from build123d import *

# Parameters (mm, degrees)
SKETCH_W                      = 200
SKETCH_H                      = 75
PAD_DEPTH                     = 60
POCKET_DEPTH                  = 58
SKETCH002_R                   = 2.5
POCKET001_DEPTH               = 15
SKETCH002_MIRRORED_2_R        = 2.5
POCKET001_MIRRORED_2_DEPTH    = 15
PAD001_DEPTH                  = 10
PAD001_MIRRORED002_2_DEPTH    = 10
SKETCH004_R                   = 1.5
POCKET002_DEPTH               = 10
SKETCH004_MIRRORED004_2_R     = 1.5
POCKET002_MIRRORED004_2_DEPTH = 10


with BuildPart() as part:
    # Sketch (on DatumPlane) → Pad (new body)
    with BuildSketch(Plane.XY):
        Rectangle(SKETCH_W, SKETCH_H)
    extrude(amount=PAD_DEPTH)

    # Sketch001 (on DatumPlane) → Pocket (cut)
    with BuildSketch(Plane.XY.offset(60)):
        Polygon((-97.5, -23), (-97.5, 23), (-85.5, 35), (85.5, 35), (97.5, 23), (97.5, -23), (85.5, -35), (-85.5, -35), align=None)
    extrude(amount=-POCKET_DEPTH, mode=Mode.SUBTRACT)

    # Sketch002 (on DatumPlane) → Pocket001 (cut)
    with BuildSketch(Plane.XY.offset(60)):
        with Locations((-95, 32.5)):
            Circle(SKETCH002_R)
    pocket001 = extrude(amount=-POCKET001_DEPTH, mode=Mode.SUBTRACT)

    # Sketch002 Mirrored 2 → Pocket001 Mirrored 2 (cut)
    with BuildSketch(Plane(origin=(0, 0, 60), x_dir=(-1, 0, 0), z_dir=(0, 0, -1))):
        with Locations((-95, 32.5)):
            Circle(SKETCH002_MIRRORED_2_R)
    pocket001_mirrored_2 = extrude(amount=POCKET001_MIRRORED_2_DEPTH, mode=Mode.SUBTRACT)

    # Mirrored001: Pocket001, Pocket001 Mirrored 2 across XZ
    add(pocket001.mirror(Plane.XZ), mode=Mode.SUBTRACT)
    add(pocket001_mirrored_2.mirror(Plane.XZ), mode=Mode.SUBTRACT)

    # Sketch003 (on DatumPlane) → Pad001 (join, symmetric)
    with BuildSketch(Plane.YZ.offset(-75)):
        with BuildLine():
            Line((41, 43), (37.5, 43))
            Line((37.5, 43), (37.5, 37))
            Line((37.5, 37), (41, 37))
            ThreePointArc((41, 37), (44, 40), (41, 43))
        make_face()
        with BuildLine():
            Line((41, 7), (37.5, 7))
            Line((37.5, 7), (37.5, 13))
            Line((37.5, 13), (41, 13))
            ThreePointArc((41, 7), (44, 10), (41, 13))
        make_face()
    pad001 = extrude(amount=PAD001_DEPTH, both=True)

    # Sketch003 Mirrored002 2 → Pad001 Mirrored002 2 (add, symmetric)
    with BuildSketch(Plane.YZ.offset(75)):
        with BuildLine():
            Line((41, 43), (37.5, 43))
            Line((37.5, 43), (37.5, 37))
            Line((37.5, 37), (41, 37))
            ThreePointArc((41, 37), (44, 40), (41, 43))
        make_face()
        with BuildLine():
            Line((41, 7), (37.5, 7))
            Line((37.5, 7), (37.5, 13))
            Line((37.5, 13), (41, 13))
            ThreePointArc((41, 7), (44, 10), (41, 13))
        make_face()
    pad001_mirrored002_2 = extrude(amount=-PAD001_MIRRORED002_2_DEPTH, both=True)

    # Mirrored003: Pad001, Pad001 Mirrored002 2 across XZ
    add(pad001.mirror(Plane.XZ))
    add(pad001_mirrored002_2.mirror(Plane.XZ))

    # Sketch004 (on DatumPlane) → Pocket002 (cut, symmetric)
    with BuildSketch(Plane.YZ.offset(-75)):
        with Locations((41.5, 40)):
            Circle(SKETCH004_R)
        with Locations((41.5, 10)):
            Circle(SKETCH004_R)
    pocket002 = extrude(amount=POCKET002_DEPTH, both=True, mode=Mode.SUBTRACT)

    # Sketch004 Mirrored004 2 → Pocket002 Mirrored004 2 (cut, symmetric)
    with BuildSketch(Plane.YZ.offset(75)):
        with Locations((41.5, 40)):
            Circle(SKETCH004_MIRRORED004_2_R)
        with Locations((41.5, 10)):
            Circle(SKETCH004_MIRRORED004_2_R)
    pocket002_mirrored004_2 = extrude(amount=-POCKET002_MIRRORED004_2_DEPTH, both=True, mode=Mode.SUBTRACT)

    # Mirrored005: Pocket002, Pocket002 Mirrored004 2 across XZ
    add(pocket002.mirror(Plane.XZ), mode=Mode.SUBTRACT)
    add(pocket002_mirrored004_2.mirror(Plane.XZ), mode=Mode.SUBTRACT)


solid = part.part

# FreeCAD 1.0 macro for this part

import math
import FreeCAD as App
import Part
import Sketcher

V = App.Vector

doc = App.newDocument("Part")
params = doc.addObject("Spreadsheet::Sheet", "Params")
for row, (alias, value) in enumerate([
    ("sketch1_width", "200 mm"),
    ("sketch1_height", "75 mm"),
    ("pad1_length", "60 mm"),
    ("sketch2_width", "171 mm"),
    ("sketch2_height", "46 mm"),
    ("pocket1_length", "58 mm"),
    ("sketch3_diameter", "5 mm"),
    ("pocket2_length", "15 mm"),
    ("sketch4_diameter", "5 mm"),
    ("pocket3_length", "15 mm"),
    ("sketch5_radius", "3 mm"),
    ("sketch5_width", "3.5 mm"),
    ("pad2_length", "20 mm"),
    ("sketch6_radius", "3 mm"),
    ("sketch6_width", "3.5 mm"),
    ("pad3_length", "20 mm"),
    ("sketch7_diameter", "3 mm"),
    ("pocket4_length", "20 mm"),
    ("sketch8_diameter", "3 mm"),
    ("pocket5_length", "20 mm"),
], start=1):
    params.set(f"A{row}", alias)
    params.set(f"B{row}", "=" + value)
    params.setAlias(f"B{row}", alias)

body = doc.addObject("PartDesign::Body", "Body")

# Sketch on XY plane
sketch1 = doc.addObject("Sketcher::SketchObject", "Sketch")
body.addObject(sketch1)
sketch1.AttachmentSupport = (doc.XY_Plane, [""])
sketch1.MapMode = "FlatFace"
sketch1.addGeometry([
    Part.LineSegment(V(-100, 38, 0), V(-100, -38, 0)),
    Part.LineSegment(V(-100, -38, 0), V(100, -38, 0)),
    Part.LineSegment(V(100, -38, 0), V(100, 38, 0)),
    Part.LineSegment(V(100, 38, 0), V(-100, 38, 0)),
], False)
sketch1.addConstraint([
    Sketcher.Constraint("Coincident", 0, 2, 1, 1),
    Sketcher.Constraint("Coincident", 1, 2, 2, 1),
    Sketcher.Constraint("Coincident", 2, 2, 3, 1),
    Sketcher.Constraint("Coincident", 3, 2, 0, 1),
    Sketcher.Constraint("Vertical", 0),
    Sketcher.Constraint("Horizontal", 1),
    Sketcher.Constraint("Vertical", 2),
    Sketcher.Constraint("Horizontal", 3),
    Sketcher.Constraint("Symmetric", 0, 2, 2, 2, -1, 1),
    Sketcher.Constraint("DistanceX", 1, 1, 1, 2, 200.0),
    Sketcher.Constraint("DistanceY", 0, 2, 0, 1, 75.0),
])
sketch1.setExpression("Constraints[9]", "Params.sketch1_width")
sketch1.setExpression("Constraints[10]", "Params.sketch1_height")
pad1 = doc.addObject("PartDesign::Pad", "Pad")
body.addObject(pad1)
pad1.Profile = sketch1
pad1.setExpression("Length", "Params.pad1_length")

# Sketch on XY plane
sketch2 = doc.addObject("Sketcher::SketchObject", "Sketch001")
body.addObject(sketch2)
sketch2.AttachmentSupport = (doc.XY_Plane, [""])
sketch2.MapMode = "FlatFace"
sketch2.AttachmentOffset = App.Placement(V(0, 0, 60), App.Rotation())
sketch2.addGeometry([
    Part.LineSegment(V(-98, 23, 0), V(-98, -23, 0)),  # 0
    Part.LineSegment(V(-98, -23, 0), V(-86, -35, 0)),  # 1
    Part.LineSegment(V(-86, -35, 0), V(86, -35, 0)),  # 2
    Part.LineSegment(V(86, -35, 0), V(98, -23, 0)),  # 3
    Part.LineSegment(V(98, -23, 0), V(98, 23, 0)),  # 4
    Part.LineSegment(V(98, 23, 0), V(86, 35, 0)),  # 5
    Part.LineSegment(V(86, 35, 0), V(-86, 35, 0)),  # 6
    Part.LineSegment(V(-86, 35, 0), V(-98, 23, 0)),  # 7
], False)
sketch2.addConstraint([
    Sketcher.Constraint("Coincident", 0, 2, 1, 1),
    Sketcher.Constraint("Coincident", 1, 2, 2, 1),
    Sketcher.Constraint("Coincident", 2, 2, 3, 1),
    Sketcher.Constraint("Coincident", 3, 2, 4, 1),
    Sketcher.Constraint("Coincident", 4, 2, 5, 1),
    Sketcher.Constraint("Coincident", 5, 2, 6, 1),
    Sketcher.Constraint("Coincident", 6, 2, 7, 1),
    Sketcher.Constraint("Coincident", 7, 2, 0, 1),
    Sketcher.Constraint("Vertical", 0),
    Sketcher.Constraint("Horizontal", 2),
    Sketcher.Constraint("Vertical", 4),
    Sketcher.Constraint("Horizontal", 6),
    Sketcher.Constraint("Symmetric", 0, 2, 4, 2, -1, 1),
    Sketcher.Constraint("Symmetric", 1, 2, 5, 2, -1, 1),
    Sketcher.Constraint("Perpendicular", 1, 3),
    Sketcher.Constraint("Perpendicular", 5, 7),
    Sketcher.Constraint("Horizontal", 0, 2, 3, 2),
    Sketcher.Constraint("Horizontal", 4, 2, 7, 2),
    Sketcher.Constraint("Vertical", 2, 2, 5, 2),
    Sketcher.Constraint("DistanceX", 2, 1, 2, 2, 171.0),
    Sketcher.Constraint("DistanceY", 0, 2, 0, 1, 46.0),
    Sketcher.Constraint("DistanceY", 1, 2, -1, 1, 35.0),
])
sketch2.setExpression("Constraints[19]", "Params.sketch2_width")
sketch2.setExpression("Constraints[20]", "Params.sketch2_height")
pocket1 = doc.addObject("PartDesign::Pocket", "Pocket")
body.addObject(pocket1)
pocket1.Profile = sketch2
pocket1.setExpression("Length", "Params.pocket1_length")

# Sketch on XY plane
sketch3 = doc.addObject("Sketcher::SketchObject", "Sketch002")
body.addObject(sketch3)
sketch3.AttachmentSupport = (doc.XY_Plane, [""])
sketch3.MapMode = "FlatFace"
sketch3.AttachmentOffset = App.Placement(V(0, 0, 60), App.Rotation())
sketch3.addGeometry(Part.Circle(V(-95, 32.5, 0), V(0, 0, 1), 2.5), False)
sketch3.addConstraint([
    Sketcher.Constraint("Diameter", 0, 5.0),
    Sketcher.Constraint("DistanceX", 0, 3, -1, 1, 95.0),
    Sketcher.Constraint("DistanceY", -1, 1, 0, 3, 32.5),
])
sketch3.setExpression("Constraints[0]", "Params.sketch3_diameter")
pocket2 = doc.addObject("PartDesign::Pocket", "Pocket001")
body.addObject(pocket2)
pocket2.Profile = sketch3
pocket2.setExpression("Length", "Params.pocket2_length")

# Sketch on XY plane
sketch4 = doc.addObject("Sketcher::SketchObject", "Sketch003")
body.addObject(sketch4)
sketch4.AttachmentSupport = (doc.XY_Plane, [""])
sketch4.MapMode = "FlatFace"
sketch4.AttachmentOffset = App.Placement(V(0, 0, 60), App.Rotation())
sketch4.addGeometry(Part.Circle(V(95, 32.5, 0), V(0, 0, 1), 2.5), False)
sketch4.addConstraint([
    Sketcher.Constraint("Diameter", 0, 5.0),
    Sketcher.Constraint("DistanceX", -1, 1, 0, 3, 95.0),
    Sketcher.Constraint("DistanceY", -1, 1, 0, 3, 32.5),
])
sketch4.setExpression("Constraints[0]", "Params.sketch4_diameter")
pocket3 = doc.addObject("PartDesign::Pocket", "Pocket002")
body.addObject(pocket3)
pocket3.Profile = sketch4
pocket3.setExpression("Length", "Params.pocket3_length")
doc.recompute()

mirrored = doc.addObject("PartDesign::Mirrored", "Mirrored")
body.addObject(mirrored)
mirrored.Originals = [pocket2, pocket3]
mirrored.MirrorPlane = (doc.XZ_Plane, [""])
body.Tip = mirrored

# Sketch on YZ plane
sketch5 = doc.addObject("Sketcher::SketchObject", "Sketch004")
body.addObject(sketch5)
sketch5.AttachmentSupport = (doc.YZ_Plane, [""])
sketch5.MapMode = "FlatFace"
sketch5.AttachmentOffset = App.Placement(V(0, 0, -75), App.Rotation())
sketch5.addGeometry([
    Part.LineSegment(V(41, 43, 0), V(37.5, 43, 0)),  # 0
    Part.LineSegment(V(37.5, 43, 0), V(37.5, 37, 0)),  # 1
    Part.LineSegment(V(37.5, 37, 0), V(41, 37, 0)),  # 2
    Part.ArcOfCircle(Part.Circle(V(41, 40, 0), V(0, 0, 1), 3), math.radians(-90), math.radians(90)),  # 3
    Part.LineSegment(V(37.5, 7, 0), V(41, 7, 0)),  # 4
    Part.ArcOfCircle(Part.Circle(V(41, 10, 0), V(0, 0, 1), 3), math.radians(-90), math.radians(90)),  # 5
    Part.LineSegment(V(41, 13, 0), V(37.5, 13, 0)),  # 6
    Part.LineSegment(V(37.5, 13, 0), V(37.5, 7, 0)),  # 7
], False)
sketch5.addConstraint([
    Sketcher.Constraint("Coincident", 0, 2, 1, 1),
    Sketcher.Constraint("Coincident", 1, 2, 2, 1),
    Sketcher.Constraint("Tangent", 2, 2, 3, 1),
    Sketcher.Constraint("Tangent", 3, 2, 0, 1),
    Sketcher.Constraint("Tangent", 4, 2, 5, 1),
    Sketcher.Constraint("Tangent", 5, 2, 6, 1),
    Sketcher.Constraint("Coincident", 6, 2, 7, 1),
    Sketcher.Constraint("Coincident", 7, 2, 4, 1),
    Sketcher.Constraint("Horizontal", 0),
    Sketcher.Constraint("Vertical", 1),
    Sketcher.Constraint("Horizontal", 2),
    Sketcher.Constraint("Horizontal", 4),
    Sketcher.Constraint("Horizontal", 6),
    Sketcher.Constraint("Vertical", 7),
    Sketcher.Constraint("Equal", 3, 5),
    Sketcher.Constraint("Vertical", 3, 3, 5, 3),
    Sketcher.Constraint("Vertical", 1, 2, 6, 2),
    Sketcher.Constraint("Radius", 3, 3.0),
    Sketcher.Constraint("DistanceX", 0, 2, 0, 1, 3.5),
    Sketcher.Constraint("DistanceX", -1, 1, 3, 3, 41.0),
    Sketcher.Constraint("DistanceY", -1, 1, 3, 3, 40.0),
    Sketcher.Constraint("DistanceY", -1, 1, 5, 3, 10.0),
])
sketch5.setExpression("Constraints[17]", "Params.sketch5_radius")
sketch5.setExpression("Constraints[18]", "Params.sketch5_width")
pad2 = doc.addObject("PartDesign::Pad", "Pad001")
body.addObject(pad2)
pad2.Profile = sketch5
pad2.setExpression("Length", "Params.pad2_length")
pad2.Midplane = True

# Sketch on YZ plane
sketch6 = doc.addObject("Sketcher::SketchObject", "Sketch005")
body.addObject(sketch6)
sketch6.AttachmentSupport = (doc.YZ_Plane, [""])
sketch6.MapMode = "FlatFace"
sketch6.AttachmentOffset = App.Placement(V(0, 0, 75), App.Rotation())
sketch6.addGeometry([
    Part.LineSegment(V(41, 43, 0), V(37.5, 43, 0)),  # 0
    Part.LineSegment(V(37.5, 43, 0), V(37.5, 37, 0)),  # 1
    Part.LineSegment(V(37.5, 37, 0), V(41, 37, 0)),  # 2
    Part.ArcOfCircle(Part.Circle(V(41, 40, 0), V(0, 0, 1), 3), math.radians(-90), math.radians(90)),  # 3
    Part.LineSegment(V(37.5, 7, 0), V(41, 7, 0)),  # 4
    Part.ArcOfCircle(Part.Circle(V(41, 10, 0), V(0, 0, 1), 3), math.radians(-90), math.radians(90)),  # 5
    Part.LineSegment(V(41, 13, 0), V(37.5, 13, 0)),  # 6
    Part.LineSegment(V(37.5, 13, 0), V(37.5, 7, 0)),  # 7
], False)
sketch6.addConstraint([
    Sketcher.Constraint("Coincident", 0, 2, 1, 1),
    Sketcher.Constraint("Coincident", 1, 2, 2, 1),
    Sketcher.Constraint("Tangent", 2, 2, 3, 1),
    Sketcher.Constraint("Tangent", 3, 2, 0, 1),
    Sketcher.Constraint("Tangent", 4, 2, 5, 1),
    Sketcher.Constraint("Tangent", 5, 2, 6, 1),
    Sketcher.Constraint("Coincident", 6, 2, 7, 1),
    Sketcher.Constraint("Coincident", 7, 2, 4, 1),
    Sketcher.Constraint("Horizontal", 0),
    Sketcher.Constraint("Vertical", 1),
    Sketcher.Constraint("Horizontal", 2),
    Sketcher.Constraint("Horizontal", 4),
    Sketcher.Constraint("Horizontal", 6),
    Sketcher.Constraint("Vertical", 7),
    Sketcher.Constraint("Equal", 3, 5),
    Sketcher.Constraint("Vertical", 3, 3, 5, 3),
    Sketcher.Constraint("Vertical", 1, 2, 6, 2),
    Sketcher.Constraint("Radius", 3, 3.0),
    Sketcher.Constraint("DistanceX", 0, 2, 0, 1, 3.5),
    Sketcher.Constraint("DistanceX", -1, 1, 3, 3, 41.0),
    Sketcher.Constraint("DistanceY", -1, 1, 3, 3, 40.0),
    Sketcher.Constraint("DistanceY", -1, 1, 5, 3, 10.0),
])
sketch6.setExpression("Constraints[17]", "Params.sketch6_radius")
sketch6.setExpression("Constraints[18]", "Params.sketch6_width")
pad3 = doc.addObject("PartDesign::Pad", "Pad002")
body.addObject(pad3)
pad3.Profile = sketch6
pad3.setExpression("Length", "Params.pad3_length")
pad3.Midplane = True
doc.recompute()

mirrored2 = doc.addObject("PartDesign::Mirrored", "Mirrored001")
body.addObject(mirrored2)
mirrored2.Originals = [pad2, pad3]
mirrored2.MirrorPlane = (doc.XZ_Plane, [""])
body.Tip = mirrored2

# Sketch on YZ plane
sketch7 = doc.addObject("Sketcher::SketchObject", "Sketch006")
body.addObject(sketch7)
sketch7.AttachmentSupport = (doc.YZ_Plane, [""])
sketch7.MapMode = "FlatFace"
sketch7.AttachmentOffset = App.Placement(V(0, 0, -75), App.Rotation())
sketch7.addGeometry([
    Part.Circle(V(41.5, 40, 0), V(0, 0, 1), 1.5),
    Part.Circle(V(41.5, 10, 0), V(0, 0, 1), 1.5),
], False)
sketch7.addConstraint([
    Sketcher.Constraint("Equal", 0, 1),
    Sketcher.Constraint("Vertical", 0, 3, 1, 3),
    Sketcher.Constraint("Diameter", 0, 3.0),
    Sketcher.Constraint("DistanceY", -1, 1, 0, 3, 40.0),
    Sketcher.Constraint("DistanceY", -1, 1, 1, 3, 10.0),
    Sketcher.Constraint("DistanceX", -1, 1, 0, 3, 41.5),
])
sketch7.setExpression("Constraints[2]", "Params.sketch7_diameter")
pocket4 = doc.addObject("PartDesign::Pocket", "Pocket003")
body.addObject(pocket4)
pocket4.Profile = sketch7
pocket4.setExpression("Length", "Params.pocket4_length")
pocket4.Midplane = True

# Sketch on YZ plane
sketch8 = doc.addObject("Sketcher::SketchObject", "Sketch007")
body.addObject(sketch8)
sketch8.AttachmentSupport = (doc.YZ_Plane, [""])
sketch8.MapMode = "FlatFace"
sketch8.AttachmentOffset = App.Placement(V(0, 0, 75), App.Rotation())
sketch8.addGeometry([
    Part.Circle(V(41.5, 40, 0), V(0, 0, 1), 1.5),
    Part.Circle(V(41.5, 10, 0), V(0, 0, 1), 1.5),
], False)
sketch8.addConstraint([
    Sketcher.Constraint("Equal", 0, 1),
    Sketcher.Constraint("Vertical", 0, 3, 1, 3),
    Sketcher.Constraint("Diameter", 0, 3.0),
    Sketcher.Constraint("DistanceY", -1, 1, 0, 3, 40.0),
    Sketcher.Constraint("DistanceY", -1, 1, 1, 3, 10.0),
    Sketcher.Constraint("DistanceX", -1, 1, 0, 3, 41.5),
])
sketch8.setExpression("Constraints[2]", "Params.sketch8_diameter")
pocket5 = doc.addObject("PartDesign::Pocket", "Pocket004")
body.addObject(pocket5)
pocket5.Profile = sketch8
pocket5.setExpression("Length", "Params.pocket5_length")
pocket5.Midplane = True
doc.recompute()

mirrored3 = doc.addObject("PartDesign::Mirrored", "Mirrored002")
body.addObject(mirrored3)
mirrored3.Originals = [pocket4, pocket5]
mirrored3.MirrorPlane = (doc.XZ_Plane, [""])
body.Tip = mirrored3

doc.recompute()
